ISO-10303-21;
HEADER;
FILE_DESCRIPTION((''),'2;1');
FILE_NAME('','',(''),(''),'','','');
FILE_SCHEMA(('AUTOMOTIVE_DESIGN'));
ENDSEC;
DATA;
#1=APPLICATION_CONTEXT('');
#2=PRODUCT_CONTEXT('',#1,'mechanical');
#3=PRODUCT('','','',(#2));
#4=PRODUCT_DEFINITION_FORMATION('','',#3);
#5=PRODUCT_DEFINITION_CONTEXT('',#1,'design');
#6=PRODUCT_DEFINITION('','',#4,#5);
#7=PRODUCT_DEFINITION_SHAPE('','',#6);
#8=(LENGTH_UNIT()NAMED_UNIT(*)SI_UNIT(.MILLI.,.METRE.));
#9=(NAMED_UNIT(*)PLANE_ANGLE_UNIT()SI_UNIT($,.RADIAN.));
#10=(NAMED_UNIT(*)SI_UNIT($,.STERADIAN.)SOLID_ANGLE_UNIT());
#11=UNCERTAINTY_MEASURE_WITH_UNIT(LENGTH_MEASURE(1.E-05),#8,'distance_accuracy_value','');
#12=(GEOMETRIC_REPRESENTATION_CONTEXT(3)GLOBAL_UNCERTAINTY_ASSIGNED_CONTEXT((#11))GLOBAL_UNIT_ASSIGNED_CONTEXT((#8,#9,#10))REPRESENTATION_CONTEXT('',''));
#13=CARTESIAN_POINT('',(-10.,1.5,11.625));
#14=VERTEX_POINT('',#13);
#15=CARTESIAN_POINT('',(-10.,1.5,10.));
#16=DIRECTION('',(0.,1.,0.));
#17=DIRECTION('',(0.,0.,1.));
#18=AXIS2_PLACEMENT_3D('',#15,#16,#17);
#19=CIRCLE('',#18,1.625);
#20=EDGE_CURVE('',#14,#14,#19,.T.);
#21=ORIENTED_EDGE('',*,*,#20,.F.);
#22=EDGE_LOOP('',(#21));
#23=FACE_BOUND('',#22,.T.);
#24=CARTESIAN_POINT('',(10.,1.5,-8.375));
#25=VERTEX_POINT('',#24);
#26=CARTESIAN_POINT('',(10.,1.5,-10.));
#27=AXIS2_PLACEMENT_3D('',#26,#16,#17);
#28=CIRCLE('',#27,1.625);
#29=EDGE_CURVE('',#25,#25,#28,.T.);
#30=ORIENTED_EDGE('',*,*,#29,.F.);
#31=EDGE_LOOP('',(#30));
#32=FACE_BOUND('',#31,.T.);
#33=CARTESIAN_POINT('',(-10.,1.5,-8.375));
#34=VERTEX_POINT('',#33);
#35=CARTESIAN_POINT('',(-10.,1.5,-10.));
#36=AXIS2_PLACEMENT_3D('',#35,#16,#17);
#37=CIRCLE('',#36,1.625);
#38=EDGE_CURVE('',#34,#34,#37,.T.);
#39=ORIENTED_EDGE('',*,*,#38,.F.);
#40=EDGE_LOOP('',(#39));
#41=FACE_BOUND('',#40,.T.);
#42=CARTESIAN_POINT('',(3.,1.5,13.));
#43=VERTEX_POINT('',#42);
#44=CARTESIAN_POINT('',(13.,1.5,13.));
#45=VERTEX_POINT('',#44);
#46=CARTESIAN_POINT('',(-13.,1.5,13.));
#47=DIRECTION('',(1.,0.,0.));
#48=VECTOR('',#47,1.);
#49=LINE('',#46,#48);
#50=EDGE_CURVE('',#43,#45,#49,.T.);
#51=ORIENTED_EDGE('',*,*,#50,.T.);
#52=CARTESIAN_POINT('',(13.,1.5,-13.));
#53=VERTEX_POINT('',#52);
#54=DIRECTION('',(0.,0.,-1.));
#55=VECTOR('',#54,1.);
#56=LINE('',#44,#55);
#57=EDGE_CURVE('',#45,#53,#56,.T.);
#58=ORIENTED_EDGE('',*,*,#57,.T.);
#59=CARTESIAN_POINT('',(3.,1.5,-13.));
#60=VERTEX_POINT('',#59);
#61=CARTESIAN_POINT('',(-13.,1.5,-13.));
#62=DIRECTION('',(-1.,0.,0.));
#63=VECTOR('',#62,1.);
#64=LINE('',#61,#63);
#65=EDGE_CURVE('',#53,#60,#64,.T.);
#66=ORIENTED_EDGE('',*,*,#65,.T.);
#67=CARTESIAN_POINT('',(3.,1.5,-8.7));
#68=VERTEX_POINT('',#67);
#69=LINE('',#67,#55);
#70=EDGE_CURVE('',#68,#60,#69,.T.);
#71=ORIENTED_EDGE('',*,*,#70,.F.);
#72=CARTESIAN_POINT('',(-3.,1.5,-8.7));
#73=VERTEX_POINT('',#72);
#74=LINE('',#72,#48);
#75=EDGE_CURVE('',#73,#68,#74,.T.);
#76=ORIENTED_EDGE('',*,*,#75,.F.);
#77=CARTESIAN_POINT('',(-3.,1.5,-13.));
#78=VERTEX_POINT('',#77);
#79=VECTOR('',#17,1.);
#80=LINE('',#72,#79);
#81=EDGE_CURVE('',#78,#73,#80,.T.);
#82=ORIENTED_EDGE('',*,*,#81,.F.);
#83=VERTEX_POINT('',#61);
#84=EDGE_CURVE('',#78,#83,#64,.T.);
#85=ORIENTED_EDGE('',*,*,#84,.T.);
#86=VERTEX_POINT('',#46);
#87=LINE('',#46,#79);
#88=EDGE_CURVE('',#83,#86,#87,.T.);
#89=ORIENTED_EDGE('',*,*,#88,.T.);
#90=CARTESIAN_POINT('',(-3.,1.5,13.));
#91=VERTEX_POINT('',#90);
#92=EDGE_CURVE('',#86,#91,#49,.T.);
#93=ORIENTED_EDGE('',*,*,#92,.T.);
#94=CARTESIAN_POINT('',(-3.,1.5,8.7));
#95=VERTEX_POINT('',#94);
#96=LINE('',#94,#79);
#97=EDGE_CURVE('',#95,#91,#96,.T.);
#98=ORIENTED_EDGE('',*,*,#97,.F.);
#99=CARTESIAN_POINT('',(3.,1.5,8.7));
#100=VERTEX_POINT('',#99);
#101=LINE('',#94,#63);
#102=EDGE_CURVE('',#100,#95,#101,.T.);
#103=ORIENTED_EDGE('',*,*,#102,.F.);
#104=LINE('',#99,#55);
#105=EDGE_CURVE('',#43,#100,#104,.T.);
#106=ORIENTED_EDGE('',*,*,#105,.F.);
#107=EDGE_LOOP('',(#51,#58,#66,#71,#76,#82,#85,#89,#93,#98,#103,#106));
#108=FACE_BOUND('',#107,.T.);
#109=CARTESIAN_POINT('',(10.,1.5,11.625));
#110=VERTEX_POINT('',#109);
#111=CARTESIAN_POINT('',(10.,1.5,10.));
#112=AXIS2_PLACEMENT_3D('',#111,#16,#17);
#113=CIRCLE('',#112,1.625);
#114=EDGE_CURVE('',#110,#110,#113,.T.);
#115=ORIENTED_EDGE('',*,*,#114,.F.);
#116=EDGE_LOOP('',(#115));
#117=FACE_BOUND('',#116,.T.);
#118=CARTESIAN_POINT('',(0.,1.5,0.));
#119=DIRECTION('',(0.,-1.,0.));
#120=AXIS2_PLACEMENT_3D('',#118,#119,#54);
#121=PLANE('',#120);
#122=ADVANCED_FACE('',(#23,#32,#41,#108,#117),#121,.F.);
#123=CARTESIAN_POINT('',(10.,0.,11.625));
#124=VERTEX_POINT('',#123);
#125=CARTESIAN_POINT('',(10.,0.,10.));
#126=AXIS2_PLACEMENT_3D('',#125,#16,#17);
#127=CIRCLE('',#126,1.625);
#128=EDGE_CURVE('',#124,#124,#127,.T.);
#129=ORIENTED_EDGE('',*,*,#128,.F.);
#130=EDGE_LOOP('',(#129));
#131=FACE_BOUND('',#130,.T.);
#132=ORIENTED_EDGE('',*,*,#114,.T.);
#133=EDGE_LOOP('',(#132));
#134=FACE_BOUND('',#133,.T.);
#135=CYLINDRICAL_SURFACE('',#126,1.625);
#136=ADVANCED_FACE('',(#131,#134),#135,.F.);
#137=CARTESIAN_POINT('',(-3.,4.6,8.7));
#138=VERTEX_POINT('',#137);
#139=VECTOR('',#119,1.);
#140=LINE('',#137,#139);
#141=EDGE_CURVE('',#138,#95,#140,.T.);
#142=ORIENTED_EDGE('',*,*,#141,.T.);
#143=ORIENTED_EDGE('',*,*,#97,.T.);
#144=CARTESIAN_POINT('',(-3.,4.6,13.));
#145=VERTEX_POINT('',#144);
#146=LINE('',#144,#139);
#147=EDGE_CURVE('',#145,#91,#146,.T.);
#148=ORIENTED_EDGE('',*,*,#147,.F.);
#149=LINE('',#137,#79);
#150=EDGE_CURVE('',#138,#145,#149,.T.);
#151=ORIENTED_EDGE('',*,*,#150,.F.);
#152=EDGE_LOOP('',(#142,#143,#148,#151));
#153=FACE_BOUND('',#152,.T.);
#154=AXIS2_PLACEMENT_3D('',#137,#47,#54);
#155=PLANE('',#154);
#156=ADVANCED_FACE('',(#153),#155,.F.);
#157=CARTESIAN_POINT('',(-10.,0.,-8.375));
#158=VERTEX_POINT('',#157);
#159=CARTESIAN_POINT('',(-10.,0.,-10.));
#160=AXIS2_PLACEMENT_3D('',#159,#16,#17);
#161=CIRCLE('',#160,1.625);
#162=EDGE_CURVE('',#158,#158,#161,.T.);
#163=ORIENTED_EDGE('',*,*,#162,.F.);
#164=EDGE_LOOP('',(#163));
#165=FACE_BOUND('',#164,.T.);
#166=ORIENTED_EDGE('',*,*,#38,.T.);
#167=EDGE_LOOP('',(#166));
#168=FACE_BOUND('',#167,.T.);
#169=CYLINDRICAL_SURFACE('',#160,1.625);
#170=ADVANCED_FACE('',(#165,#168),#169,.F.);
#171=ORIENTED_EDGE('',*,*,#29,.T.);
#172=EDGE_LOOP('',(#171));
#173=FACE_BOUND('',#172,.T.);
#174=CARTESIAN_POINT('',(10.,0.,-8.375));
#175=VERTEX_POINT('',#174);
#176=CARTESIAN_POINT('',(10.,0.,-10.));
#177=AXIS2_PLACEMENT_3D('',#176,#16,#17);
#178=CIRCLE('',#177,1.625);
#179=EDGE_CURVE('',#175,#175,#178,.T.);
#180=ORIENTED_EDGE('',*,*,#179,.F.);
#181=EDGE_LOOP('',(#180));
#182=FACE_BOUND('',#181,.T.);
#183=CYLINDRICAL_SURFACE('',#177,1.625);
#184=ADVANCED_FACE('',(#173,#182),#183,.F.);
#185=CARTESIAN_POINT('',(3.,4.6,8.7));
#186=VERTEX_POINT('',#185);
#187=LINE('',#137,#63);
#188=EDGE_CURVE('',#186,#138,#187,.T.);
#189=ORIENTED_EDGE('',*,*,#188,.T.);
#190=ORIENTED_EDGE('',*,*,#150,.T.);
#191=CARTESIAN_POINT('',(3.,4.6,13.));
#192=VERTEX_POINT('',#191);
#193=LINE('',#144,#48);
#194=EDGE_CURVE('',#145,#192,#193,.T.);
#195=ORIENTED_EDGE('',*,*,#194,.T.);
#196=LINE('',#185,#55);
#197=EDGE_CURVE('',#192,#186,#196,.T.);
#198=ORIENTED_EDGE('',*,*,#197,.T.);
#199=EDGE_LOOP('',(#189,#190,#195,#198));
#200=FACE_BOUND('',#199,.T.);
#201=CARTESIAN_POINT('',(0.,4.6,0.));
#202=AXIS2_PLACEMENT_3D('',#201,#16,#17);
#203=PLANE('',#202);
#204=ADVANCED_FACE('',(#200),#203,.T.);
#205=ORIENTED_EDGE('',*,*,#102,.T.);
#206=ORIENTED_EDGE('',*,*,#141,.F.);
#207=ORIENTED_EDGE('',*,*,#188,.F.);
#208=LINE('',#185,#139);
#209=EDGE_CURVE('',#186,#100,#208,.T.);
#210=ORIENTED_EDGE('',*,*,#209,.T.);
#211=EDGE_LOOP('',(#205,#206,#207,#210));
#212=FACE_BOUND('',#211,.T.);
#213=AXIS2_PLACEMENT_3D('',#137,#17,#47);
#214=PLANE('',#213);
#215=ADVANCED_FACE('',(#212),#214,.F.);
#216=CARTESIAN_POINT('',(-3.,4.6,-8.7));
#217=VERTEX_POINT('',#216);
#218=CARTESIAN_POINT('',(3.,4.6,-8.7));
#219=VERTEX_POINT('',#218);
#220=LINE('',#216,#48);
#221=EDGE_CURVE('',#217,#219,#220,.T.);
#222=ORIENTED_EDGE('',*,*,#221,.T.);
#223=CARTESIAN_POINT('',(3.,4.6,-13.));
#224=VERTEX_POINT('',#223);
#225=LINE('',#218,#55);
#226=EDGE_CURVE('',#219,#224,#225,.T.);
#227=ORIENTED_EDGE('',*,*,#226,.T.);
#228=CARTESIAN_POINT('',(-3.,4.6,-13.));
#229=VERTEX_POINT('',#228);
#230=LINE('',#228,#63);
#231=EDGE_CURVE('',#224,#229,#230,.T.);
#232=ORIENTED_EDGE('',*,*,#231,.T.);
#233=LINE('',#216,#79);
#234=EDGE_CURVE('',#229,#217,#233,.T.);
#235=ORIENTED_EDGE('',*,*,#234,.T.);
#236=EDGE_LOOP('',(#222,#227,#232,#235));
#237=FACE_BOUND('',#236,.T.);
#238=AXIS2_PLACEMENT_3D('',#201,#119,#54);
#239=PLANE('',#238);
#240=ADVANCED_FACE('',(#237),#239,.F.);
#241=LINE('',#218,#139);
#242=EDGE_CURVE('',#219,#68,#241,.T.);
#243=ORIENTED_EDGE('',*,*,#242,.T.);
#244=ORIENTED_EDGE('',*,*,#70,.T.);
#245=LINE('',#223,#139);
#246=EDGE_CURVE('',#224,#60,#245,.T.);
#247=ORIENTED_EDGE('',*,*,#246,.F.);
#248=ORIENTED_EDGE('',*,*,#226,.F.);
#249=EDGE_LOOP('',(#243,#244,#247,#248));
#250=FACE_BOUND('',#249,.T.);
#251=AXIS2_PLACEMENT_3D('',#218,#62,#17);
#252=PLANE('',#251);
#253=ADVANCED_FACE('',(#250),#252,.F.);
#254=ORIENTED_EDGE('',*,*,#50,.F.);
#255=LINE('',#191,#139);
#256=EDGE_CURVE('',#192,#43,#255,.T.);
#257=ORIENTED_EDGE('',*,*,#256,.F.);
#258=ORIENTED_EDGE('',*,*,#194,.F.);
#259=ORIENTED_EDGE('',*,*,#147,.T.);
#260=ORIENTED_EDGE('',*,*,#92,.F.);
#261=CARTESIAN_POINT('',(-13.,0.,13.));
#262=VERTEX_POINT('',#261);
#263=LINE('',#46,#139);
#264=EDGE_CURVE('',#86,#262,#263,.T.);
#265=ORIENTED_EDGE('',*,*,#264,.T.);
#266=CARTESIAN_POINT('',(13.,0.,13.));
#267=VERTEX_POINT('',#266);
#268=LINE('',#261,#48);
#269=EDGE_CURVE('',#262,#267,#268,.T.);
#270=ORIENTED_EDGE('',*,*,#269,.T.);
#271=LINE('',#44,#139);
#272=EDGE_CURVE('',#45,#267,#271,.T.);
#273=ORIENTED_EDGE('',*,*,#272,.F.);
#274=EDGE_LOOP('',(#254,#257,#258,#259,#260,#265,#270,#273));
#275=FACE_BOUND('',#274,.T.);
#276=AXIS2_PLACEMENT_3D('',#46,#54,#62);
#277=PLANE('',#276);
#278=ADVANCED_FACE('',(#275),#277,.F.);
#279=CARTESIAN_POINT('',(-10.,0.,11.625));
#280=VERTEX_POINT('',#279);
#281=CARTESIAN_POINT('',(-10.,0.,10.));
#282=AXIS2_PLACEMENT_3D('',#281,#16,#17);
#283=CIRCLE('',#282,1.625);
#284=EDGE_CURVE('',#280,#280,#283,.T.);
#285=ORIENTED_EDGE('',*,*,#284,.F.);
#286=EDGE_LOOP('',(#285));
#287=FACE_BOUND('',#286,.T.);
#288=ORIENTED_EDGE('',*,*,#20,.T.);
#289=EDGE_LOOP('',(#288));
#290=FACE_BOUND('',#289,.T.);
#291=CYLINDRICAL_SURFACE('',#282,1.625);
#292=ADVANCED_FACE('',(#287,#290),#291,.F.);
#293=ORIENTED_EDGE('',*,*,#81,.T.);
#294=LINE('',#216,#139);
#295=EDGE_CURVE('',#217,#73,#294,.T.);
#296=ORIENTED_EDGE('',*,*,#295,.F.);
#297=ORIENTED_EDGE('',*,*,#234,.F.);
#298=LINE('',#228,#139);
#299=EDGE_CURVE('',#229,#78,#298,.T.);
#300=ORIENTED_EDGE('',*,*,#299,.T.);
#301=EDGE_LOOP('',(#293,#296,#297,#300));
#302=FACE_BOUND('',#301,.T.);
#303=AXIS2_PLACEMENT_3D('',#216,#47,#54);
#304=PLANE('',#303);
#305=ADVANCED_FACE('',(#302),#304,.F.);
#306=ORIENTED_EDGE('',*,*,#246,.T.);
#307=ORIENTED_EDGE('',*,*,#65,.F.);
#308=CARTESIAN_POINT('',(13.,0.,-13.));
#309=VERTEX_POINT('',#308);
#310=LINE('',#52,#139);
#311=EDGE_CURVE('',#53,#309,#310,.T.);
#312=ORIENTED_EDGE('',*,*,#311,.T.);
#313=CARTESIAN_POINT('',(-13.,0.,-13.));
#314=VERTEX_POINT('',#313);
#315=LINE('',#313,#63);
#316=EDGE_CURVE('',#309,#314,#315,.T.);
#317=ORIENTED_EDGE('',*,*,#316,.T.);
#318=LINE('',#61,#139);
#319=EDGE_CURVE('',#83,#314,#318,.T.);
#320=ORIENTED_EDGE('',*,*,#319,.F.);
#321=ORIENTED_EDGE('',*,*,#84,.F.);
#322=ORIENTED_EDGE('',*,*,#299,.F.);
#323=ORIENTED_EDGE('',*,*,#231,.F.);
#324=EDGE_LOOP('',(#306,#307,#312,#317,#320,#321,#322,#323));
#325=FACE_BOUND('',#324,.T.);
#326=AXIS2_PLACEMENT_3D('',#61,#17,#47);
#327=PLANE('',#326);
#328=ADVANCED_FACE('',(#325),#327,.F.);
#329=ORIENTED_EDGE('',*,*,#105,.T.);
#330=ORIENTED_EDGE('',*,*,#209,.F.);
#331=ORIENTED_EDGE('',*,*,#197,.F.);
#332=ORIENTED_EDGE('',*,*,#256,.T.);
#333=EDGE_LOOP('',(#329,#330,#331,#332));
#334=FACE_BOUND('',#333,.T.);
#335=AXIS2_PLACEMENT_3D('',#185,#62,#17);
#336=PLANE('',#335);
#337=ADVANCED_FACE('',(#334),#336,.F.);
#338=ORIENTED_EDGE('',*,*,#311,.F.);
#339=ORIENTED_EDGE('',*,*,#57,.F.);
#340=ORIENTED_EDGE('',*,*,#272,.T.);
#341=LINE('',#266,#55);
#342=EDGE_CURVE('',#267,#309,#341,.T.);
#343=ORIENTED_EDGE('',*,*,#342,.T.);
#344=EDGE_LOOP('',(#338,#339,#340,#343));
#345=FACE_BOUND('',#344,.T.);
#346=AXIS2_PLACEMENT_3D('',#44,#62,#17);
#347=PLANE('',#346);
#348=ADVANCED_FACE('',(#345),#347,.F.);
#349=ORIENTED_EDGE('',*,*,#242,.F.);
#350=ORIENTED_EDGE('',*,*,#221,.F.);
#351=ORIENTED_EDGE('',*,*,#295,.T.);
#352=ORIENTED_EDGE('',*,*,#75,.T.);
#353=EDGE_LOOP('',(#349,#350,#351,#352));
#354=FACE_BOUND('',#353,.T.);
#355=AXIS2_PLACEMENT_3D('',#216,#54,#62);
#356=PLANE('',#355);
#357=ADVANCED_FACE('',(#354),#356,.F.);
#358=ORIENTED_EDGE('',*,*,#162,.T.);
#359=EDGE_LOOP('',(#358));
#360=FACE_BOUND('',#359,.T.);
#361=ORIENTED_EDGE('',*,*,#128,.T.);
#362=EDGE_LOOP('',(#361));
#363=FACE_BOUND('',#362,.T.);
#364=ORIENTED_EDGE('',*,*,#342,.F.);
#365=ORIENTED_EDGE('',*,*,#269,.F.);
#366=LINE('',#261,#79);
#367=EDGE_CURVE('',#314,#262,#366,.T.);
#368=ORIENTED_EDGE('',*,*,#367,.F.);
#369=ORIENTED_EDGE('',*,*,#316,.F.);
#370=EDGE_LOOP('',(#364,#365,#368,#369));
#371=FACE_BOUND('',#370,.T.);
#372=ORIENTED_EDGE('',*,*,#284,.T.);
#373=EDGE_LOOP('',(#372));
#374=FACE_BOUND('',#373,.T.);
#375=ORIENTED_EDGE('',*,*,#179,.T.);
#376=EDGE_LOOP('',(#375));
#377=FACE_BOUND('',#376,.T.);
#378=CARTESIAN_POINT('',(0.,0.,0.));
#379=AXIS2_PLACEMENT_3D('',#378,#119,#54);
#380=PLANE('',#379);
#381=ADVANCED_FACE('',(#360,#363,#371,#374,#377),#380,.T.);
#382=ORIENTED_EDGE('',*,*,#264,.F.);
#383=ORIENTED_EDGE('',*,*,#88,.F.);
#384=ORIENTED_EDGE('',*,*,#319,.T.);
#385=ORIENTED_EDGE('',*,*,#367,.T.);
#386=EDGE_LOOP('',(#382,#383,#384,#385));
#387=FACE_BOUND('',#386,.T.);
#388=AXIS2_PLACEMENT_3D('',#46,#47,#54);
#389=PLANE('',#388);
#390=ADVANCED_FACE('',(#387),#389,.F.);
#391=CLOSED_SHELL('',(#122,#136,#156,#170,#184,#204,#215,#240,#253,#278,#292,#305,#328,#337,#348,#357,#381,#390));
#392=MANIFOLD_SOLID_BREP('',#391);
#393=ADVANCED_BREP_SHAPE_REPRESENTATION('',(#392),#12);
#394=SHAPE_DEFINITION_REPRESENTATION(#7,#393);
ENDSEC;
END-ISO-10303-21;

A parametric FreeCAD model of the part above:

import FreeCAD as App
import Part
import Sketcher
from FreeCAD import Vector
Q = App.Units.Quantity


def add_polygon(sketch, points):
    """Adds a closed chain of lines whose ends are joined by coincident constraints."""
    first, n = sketch.GeometryCount, len(points)
    for a, b in zip(points, points[1:] + points[:1]):
        sketch.addGeometry(Part.LineSegment(App.Vector(*a, 0), App.Vector(*b, 0)), False)
    for i in range(n):
        sketch.addConstraint(Sketcher.Constraint("Coincident", first + i, 2, first + (i + 1) % n, 1))

doc = App.newDocument("Part")
body = doc.addObject("PartDesign::Body", "Body")

# Sketch on XZ plane
sketch1 = doc.addObject("Sketcher::SketchObject", "Sketch")
body.addObject(sketch1)
sketch1.AttachmentSupport = (doc.XZ_Plane, [""])
sketch1.MapMode = "FlatFace"
add_polygon(sketch1, [(-13, -13), (-13, 13), (13, 13), (13, -13)])  # lines 0-3
sketch1.addConstraint([
    Sketcher.Constraint("Vertical", 0),
    Sketcher.Constraint("Horizontal", 1),
    Sketcher.Constraint("Vertical", 2),
    Sketcher.Constraint("Horizontal", 3),
    Sketcher.Constraint("Symmetric", 0, 2, 2, 2, -1, 1),
    Sketcher.Constraint("Equal", 3, 0),
    Sketcher.Constraint("DistanceX", 1, 1, 1, 2, Q("26 mm")),
])
pad1 = doc.addObject("PartDesign::Pad", "Pad")
body.addObject(pad1)
pad1.Profile = sketch1
pad1.Length = 1.5
pad1.Reversed = True

# Sketch on XZ plane
sketch2 = doc.addObject("Sketcher::SketchObject", "Sketch001")
body.addObject(sketch2)
sketch2.AttachmentSupport = (doc.XZ_Plane, [""])
sketch2.MapMode = "FlatFace"
sketch2.AttachmentOffset = App.Placement(Vector(0, 0, -1.5), App.Rotation())
sketch2.addGeometry([
    Part.Circle(Vector(-10, -10, 0), Vector(0, 0, 1), 1.6),
    Part.Circle(Vector(10, -10, 0), Vector(0, 0, 1), 1.6),
    Part.Circle(Vector(10, 10, 0), Vector(0, 0, 1), 1.6),
    Part.Circle(Vector(-10, 10, 0), Vector(0, 0, 1), 1.6),
], False)
sketch2.addConstraint([
    Sketcher.Constraint("Equal", 0, 1),
    Sketcher.Constraint("Equal", 1, 2),
    Sketcher.Constraint("Equal", 2, 3),
    Sketcher.Constraint("Symmetric", 0, 3, 2, 3, -1, 1),
    Sketcher.Constraint("Symmetric", 1, 3, 3, 3, -1, 1),
    Sketcher.Constraint("Symmetric", 0, 3, 1, 3, -2),
    Sketcher.Constraint("Diameter", 0, Q("3.25 mm")),
    Sketcher.Constraint("DistanceX", 0, 3, -1, 1, Q("10 mm")),
    Sketcher.Constraint("DistanceY", 0, 3, -1, 1, Q("10 mm")),
])
pocket1 = doc.addObject("PartDesign::Pocket", "Pocket")
body.addObject(pocket1)
pocket1.Profile = sketch2
pocket1.Type = "ThroughAll"
pocket1.Reversed = True

# Sketch on XZ plane
sketch3 = doc.addObject("Sketcher::SketchObject", "Sketch002")
body.addObject(sketch3)
sketch3.AttachmentSupport = (doc.XZ_Plane, [""])
sketch3.MapMode = "FlatFace"
sketch3.AttachmentOffset = App.Placement(Vector(0, 0, -1.5), App.Rotation())
add_polygon(sketch3, [(-3, -13), (-3, -8.7), (3, -8.7), (3, -13)])  # lines 0-3
add_polygon(sketch3, [(-3, 8.7), (-3, 13), (3, 13), (3, 8.7)])  # lines 4-7
sketch3.addConstraint([
    Sketcher.Constraint("Vertical", 0),
    Sketcher.Constraint("Horizontal", 1),
    Sketcher.Constraint("Vertical", 2),
    Sketcher.Constraint("Horizontal", 3),
    Sketcher.Constraint("Vertical", 4),
    Sketcher.Constraint("Horizontal", 5),
    Sketcher.Constraint("Vertical", 6),
    Sketcher.Constraint("Horizontal", 7),
    Sketcher.Constraint("Symmetric", 2, 2, 4, 2, -1, 1),
    Sketcher.Constraint("Symmetric", 0, 2, 6, 2, -1, 1),
    Sketcher.Constraint("Vertical", 3, 2, 4, 2),
    Sketcher.Constraint("DistanceX", 1, 1, 1, 2, Q("6 mm")),
    Sketcher.Constraint("DistanceY", 0, 1, 0, 2, Q("4.3 mm")),
    Sketcher.Constraint("DistanceY", 2, 2, -1, 1, Q("13 mm")),
])
pad2 = doc.addObject("PartDesign::Pad", "Pad001")
body.addObject(pad2)
pad2.Profile = sketch3
pad2.Length = 3.1
pad2.Reversed = True

doc.recompute()
